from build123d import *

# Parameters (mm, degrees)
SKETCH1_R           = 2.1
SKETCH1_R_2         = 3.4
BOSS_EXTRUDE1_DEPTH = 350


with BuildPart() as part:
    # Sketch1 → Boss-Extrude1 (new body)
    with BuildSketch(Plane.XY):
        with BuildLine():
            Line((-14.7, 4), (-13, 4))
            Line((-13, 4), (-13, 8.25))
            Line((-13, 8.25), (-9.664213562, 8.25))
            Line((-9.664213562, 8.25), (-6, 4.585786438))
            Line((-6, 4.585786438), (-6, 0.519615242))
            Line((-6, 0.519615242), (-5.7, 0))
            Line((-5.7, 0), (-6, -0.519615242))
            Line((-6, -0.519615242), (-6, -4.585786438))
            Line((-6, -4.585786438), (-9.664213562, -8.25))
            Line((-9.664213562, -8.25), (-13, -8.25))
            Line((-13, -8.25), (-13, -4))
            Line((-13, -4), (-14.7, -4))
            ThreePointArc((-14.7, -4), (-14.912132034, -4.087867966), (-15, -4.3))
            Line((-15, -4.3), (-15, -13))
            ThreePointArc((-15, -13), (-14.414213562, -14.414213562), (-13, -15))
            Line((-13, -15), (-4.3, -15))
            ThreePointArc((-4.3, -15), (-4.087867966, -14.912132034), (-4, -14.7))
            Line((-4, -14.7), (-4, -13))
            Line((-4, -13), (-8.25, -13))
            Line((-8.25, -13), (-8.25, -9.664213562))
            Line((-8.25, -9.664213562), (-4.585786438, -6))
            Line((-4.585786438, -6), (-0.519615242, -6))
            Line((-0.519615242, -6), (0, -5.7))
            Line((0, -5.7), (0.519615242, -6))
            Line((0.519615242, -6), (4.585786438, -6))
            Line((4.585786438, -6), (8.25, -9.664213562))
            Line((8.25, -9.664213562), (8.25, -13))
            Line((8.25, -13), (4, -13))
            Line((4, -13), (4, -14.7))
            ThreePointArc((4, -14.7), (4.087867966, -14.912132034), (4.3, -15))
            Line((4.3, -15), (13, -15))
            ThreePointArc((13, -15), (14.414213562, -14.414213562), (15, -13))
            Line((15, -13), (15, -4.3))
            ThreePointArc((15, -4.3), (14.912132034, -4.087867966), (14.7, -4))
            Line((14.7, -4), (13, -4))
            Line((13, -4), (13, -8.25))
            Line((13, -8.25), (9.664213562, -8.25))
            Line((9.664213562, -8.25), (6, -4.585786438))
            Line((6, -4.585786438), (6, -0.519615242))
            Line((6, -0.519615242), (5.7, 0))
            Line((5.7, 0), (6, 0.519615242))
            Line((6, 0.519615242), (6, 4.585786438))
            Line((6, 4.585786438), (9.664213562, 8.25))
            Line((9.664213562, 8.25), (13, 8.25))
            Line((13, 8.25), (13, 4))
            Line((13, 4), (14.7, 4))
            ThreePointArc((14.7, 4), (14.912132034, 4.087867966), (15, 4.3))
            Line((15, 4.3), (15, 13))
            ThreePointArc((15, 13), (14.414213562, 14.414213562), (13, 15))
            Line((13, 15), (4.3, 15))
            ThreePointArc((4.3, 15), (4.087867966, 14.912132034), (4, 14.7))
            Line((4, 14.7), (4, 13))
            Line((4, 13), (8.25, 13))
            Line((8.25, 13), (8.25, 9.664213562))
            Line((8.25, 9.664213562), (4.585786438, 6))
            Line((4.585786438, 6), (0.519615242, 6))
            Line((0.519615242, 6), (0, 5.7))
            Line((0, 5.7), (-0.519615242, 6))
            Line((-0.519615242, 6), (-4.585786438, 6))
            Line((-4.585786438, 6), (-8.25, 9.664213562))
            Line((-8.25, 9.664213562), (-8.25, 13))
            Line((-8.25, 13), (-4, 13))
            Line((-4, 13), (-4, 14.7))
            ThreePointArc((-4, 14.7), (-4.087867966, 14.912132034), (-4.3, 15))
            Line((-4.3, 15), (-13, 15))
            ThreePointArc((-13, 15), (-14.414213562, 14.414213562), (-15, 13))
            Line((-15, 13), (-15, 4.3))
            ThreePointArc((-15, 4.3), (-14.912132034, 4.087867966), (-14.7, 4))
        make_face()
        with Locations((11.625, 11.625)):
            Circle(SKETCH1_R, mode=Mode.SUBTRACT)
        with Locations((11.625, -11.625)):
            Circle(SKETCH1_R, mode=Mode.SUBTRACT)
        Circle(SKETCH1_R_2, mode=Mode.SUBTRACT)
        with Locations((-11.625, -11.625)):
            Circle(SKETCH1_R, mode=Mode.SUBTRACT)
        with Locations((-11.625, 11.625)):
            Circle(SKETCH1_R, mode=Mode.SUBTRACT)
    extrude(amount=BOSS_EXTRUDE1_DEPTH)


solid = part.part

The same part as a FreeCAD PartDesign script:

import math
import FreeCAD as App
import Part
import Sketcher
Q = App.Units.Quantity

doc = App.newDocument("Part")
params = doc.addObject("Spreadsheet::Sheet", "Params")
for row, (alias, value) in enumerate([
    ("sketch1_radius", "2 mm"),
    ("sketch1_diameter", "4.2 mm"),
    ("sketch1_diameter2", "6.8 mm"),
    ("sketch1_radius2", "0.3 mm"),
    ("sketch1_width", "8.7 mm"),
    ("pad1_length", "350 mm"),
], start=1):
    params.set(f"A{row}", alias)
    params.set(f"B{row}", "=" + value)
    params.setAlias(f"B{row}", alias)

body = doc.addObject("PartDesign::Body", "Body")

# Sketch on XY plane
sketch1 = body.newObject("Sketcher::SketchObject", "Sketch")
sketch1.AttachmentSupport = (doc.getObject("XY_Plane"), [""])
sketch1.MapMode = "FlatFace"
sketch1.addGeometry(Part.LineSegment(App.Vector(-14.7, 4, 0), App.Vector(-13, 4, 0)), False)
sketch1.addGeometry(Part.LineSegment(App.Vector(-13, 4, 0), App.Vector(-13, 8.25, 0)), False)
sketch1.addGeometry(Part.LineSegment(App.Vector(-13, 8.25, 0), App.Vector(-9.664214, 8.25, 0)), False)
sketch1.addGeometry(Part.LineSegment(App.Vector(-9.664214, 8.25, 0), App.Vector(-6, 4.585786, 0)), False)
sketch1.addGeometry(Part.LineSegment(App.Vector(-6, 4.585786, 0), App.Vector(-6, 0.519615, 0)), False)
sketch1.addGeometry(Part.LineSegment(App.Vector(-6, 0.519615, 0), App.Vector(-5.7, 0, 0)), False)
sketch1.addGeometry(Part.LineSegment(App.Vector(-5.7, 0, 0), App.Vector(-6, -0.519615, 0)), False)
sketch1.addGeometry(Part.LineSegment(App.Vector(-6, -0.519615, 0), App.Vector(-6, -4.585786, 0)), False)
sketch1.addGeometry(Part.LineSegment(App.Vector(-6, -4.585786, 0), App.Vector(-9.664214, -8.25, 0)), False)
sketch1.addGeometry(Part.LineSegment(App.Vector(-9.664214, -8.25, 0), App.Vector(-13, -8.25, 0)), False)
sketch1.addGeometry(Part.LineSegment(App.Vector(-13, -8.25, 0), App.Vector(-13, -4, 0)), False)
sketch1.addGeometry(Part.LineSegment(App.Vector(-13, -4, 0), App.Vector(-14.7, -4, 0)), False)
sketch1.addGeometry(Part.ArcOfCircle(Part.Circle(App.Vector(-14.7, -4.3, 0), App.Vector(0, 0, 1), 0.3), math.radians(90), math.radians(180)), False)
sketch1.addGeometry(Part.LineSegment(App.Vector(-15, -4.3, 0), App.Vector(-15, -13, 0)), False)
sketch1.addGeometry(Part.ArcOfCircle(Part.Circle(App.Vector(-13, -13, 0), App.Vector(0, 0, 1), 2), math.radians(-180), math.radians(-90)), False)
sketch1.addGeometry(Part.LineSegment(App.Vector(-13, -15, 0), App.Vector(-4.3, -15, 0)), False)
sketch1.addGeometry(Part.ArcOfCircle(Part.Circle(App.Vector(-4.3, -14.7, 0), App.Vector(0, 0, 1), 0.3), math.radians(-90), math.radians(0)), False)
sketch1.addGeometry(Part.LineSegment(App.Vector(-4, -14.7, 0), App.Vector(-4, -13, 0)), False)
sketch1.addGeometry(Part.LineSegment(App.Vector(-4, -13, 0), App.Vector(-8.25, -13, 0)), False)
sketch1.addGeometry(Part.LineSegment(App.Vector(-8.25, -13, 0), App.Vector(-8.25, -9.664214, 0)), False)
sketch1.addGeometry(Part.LineSegment(App.Vector(-8.25, -9.664214, 0), App.Vector(-4.585786, -6, 0)), False)
sketch1.addGeometry(Part.LineSegment(App.Vector(-4.585786, -6, 0), App.Vector(-0.519615, -6, 0)), False)
sketch1.addGeometry(Part.LineSegment(App.Vector(-0.519615, -6, 0), App.Vector(0, -5.7, 0)), False)
sketch1.addGeometry(Part.LineSegment(App.Vector(0, -5.7, 0), App.Vector(0.519615, -6, 0)), False)
sketch1.addGeometry(Part.LineSegment(App.Vector(0.519615, -6, 0), App.Vector(4.585786, -6, 0)), False)
sketch1.addGeometry(Part.LineSegment(App.Vector(4.585786, -6, 0), App.Vector(8.25, -9.664214, 0)), False)
sketch1.addGeometry(Part.LineSegment(App.Vector(8.25, -9.664214, 0), App.Vector(8.25, -13, 0)), False)
sketch1.addGeometry(Part.LineSegment(App.Vector(8.25, -13, 0), App.Vector(4, -13, 0)), False)
sketch1.addGeometry(Part.LineSegment(App.Vector(4, -13, 0), App.Vector(4, -14.7, 0)), False)
sketch1.addGeometry(Part.ArcOfCircle(Part.Circle(App.Vector(4.3, -14.7, 0), App.Vector(0, 0, 1), 0.3), math.radians(-180), math.radians(-90)), False)
sketch1.addGeometry(Part.LineSegment(App.Vector(4.3, -15, 0), App.Vector(13, -15, 0)), False)
sketch1.addGeometry(Part.ArcOfCircle(Part.Circle(App.Vector(13, -13, 0), App.Vector(0, 0, 1), 2), math.radians(-90), math.radians(0)), False)
sketch1.addGeometry(Part.LineSegment(App.Vector(15, -13, 0), App.Vector(15, -4.3, 0)), False)
sketch1.addGeometry(Part.ArcOfCircle(Part.Circle(App.Vector(14.7, -4.3, 0), App.Vector(0, 0, 1), 0.3), math.radians(0), math.radians(90)), False)
sketch1.addGeometry(Part.LineSegment(App.Vector(14.7, -4, 0), App.Vector(13, -4, 0)), False)
sketch1.addGeometry(Part.LineSegment(App.Vector(13, -4, 0), App.Vector(13, -8.25, 0)), False)
sketch1.addGeometry(Part.LineSegment(App.Vector(13, -8.25, 0), App.Vector(9.664214, -8.25, 0)), False)
sketch1.addGeometry(Part.LineSegment(App.Vector(9.664214, -8.25, 0), App.Vector(6, -4.585786, 0)), False)
sketch1.addGeometry(Part.LineSegment(App.Vector(6, -4.585786, 0), App.Vector(6, -0.519615, 0)), False)
sketch1.addGeometry(Part.LineSegment(App.Vector(6, -0.519615, 0), App.Vector(5.7, 0, 0)), False)
sketch1.addGeometry(Part.LineSegment(App.Vector(5.7, 0, 0), App.Vector(6, 0.519615, 0)), False)
sketch1.addGeometry(Part.LineSegment(App.Vector(6, 0.519615, 0), App.Vector(6, 4.585786, 0)), False)
sketch1.addGeometry(Part.LineSegment(App.Vector(6, 4.585786, 0), App.Vector(9.664214, 8.25, 0)), False)
sketch1.addGeometry(Part.LineSegment(App.Vector(9.664214, 8.25, 0), App.Vector(13, 8.25, 0)), False)
sketch1.addGeometry(Part.LineSegment(App.Vector(13, 8.25, 0), App.Vector(13, 4, 0)), False)
sketch1.addGeometry(Part.LineSegment(App.Vector(13, 4, 0), App.Vector(14.7, 4, 0)), False)
sketch1.addGeometry(Part.ArcOfCircle(Part.Circle(App.Vector(14.7, 4.3, 0), App.Vector(0, 0, 1), 0.3), math.radians(-90), math.radians(0)), False)
sketch1.addGeometry(Part.LineSegment(App.Vector(15, 4.3, 0), App.Vector(15, 13, 0)), False)
sketch1.addGeometry(Part.ArcOfCircle(Part.Circle(App.Vector(13, 13, 0), App.Vector(0, 0, 1), 2), math.radians(0), math.radians(90)), False)
sketch1.addGeometry(Part.LineSegment(App.Vector(13, 15, 0), App.Vector(4.3, 15, 0)), False)
sketch1.addGeometry(Part.ArcOfCircle(Part.Circle(App.Vector(4.3, 14.7, 0), App.Vector(0, 0, 1), 0.3), math.radians(90), math.radians(180)), False)
sketch1.addGeometry(Part.LineSegment(App.Vector(4, 14.7, 0), App.Vector(4, 13, 0)), False)
sketch1.addGeometry(Part.LineSegment(App.Vector(4, 13, 0), App.Vector(8.25, 13, 0)), False)
sketch1.addGeometry(Part.LineSegment(App.Vector(8.25, 13, 0), App.Vector(8.25, 9.664214, 0)), False)
sketch1.addGeometry(Part.LineSegment(App.Vector(8.25, 9.664214, 0), App.Vector(4.585786, 6, 0)), False)
sketch1.addGeometry(Part.LineSegment(App.Vector(4.585786, 6, 0), App.Vector(0.519615, 6, 0)), False)
sketch1.addGeometry(Part.LineSegment(App.Vector(0.519615, 6, 0), App.Vector(0, 5.7, 0)), False)
sketch1.addGeometry(Part.LineSegment(App.Vector(0, 5.7, 0), App.Vector(-0.519615, 6, 0)), False)
sketch1.addGeometry(Part.LineSegment(App.Vector(-0.519615, 6, 0), App.Vector(-4.585786, 6, 0)), False)
sketch1.addGeometry(Part.LineSegment(App.Vector(-4.585786, 6, 0), App.Vector(-8.25, 9.664214, 0)), False)
sketch1.addGeometry(Part.LineSegment(App.Vector(-8.25, 9.664214, 0), App.Vector(-8.25, 13, 0)), False)
sketch1.addGeometry(Part.LineSegment(App.Vector(-8.25, 13, 0), App.Vector(-4, 13, 0)), False)
sketch1.addGeometry(Part.LineSegment(App.Vector(-4, 13, 0), App.Vector(-4, 14.7, 0)), False)
sketch1.addGeometry(Part.ArcOfCircle(Part.Circle(App.Vector(-4.3, 14.7, 0), App.Vector(0, 0, 1), 0.3), math.radians(0), math.radians(90)), False)
sketch1.addGeometry(Part.LineSegment(App.Vector(-4.3, 15, 0), App.Vector(-13, 15, 0)), False)
sketch1.addGeometry(Part.ArcOfCircle(Part.Circle(App.Vector(-13, 13, 0), App.Vector(0, 0, 1), 2), math.radians(90), math.radians(180)), False)
sketch1.addGeometry(Part.LineSegment(App.Vector(-15, 13, 0), App.Vector(-15, 4.3, 0)), False)
sketch1.addGeometry(Part.ArcOfCircle(Part.Circle(App.Vector(-14.7, 4.3, 0), App.Vector(0, 0, 1), 0.3), math.radians(-180), math.radians(-90)), False)
sketch1.addGeometry(Part.Circle(App.Vector(-11.625, -11.625, 0), App.Vector(0, 0, 1), 2.1), False)
sketch1.addGeometry(Part.Circle(App.Vector(11.625, -11.625, 0), App.Vector(0, 0, 1), 2.1), False)
sketch1.addGeometry(Part.Circle(App.Vector(-11.625, 11.625, 0), App.Vector(0, 0, 1), 2.1), False)
sketch1.addGeometry(Part.Circle(App.Vector(0, 0, 0), App.Vector(0, 0, 1), 3.4), False)
sketch1.addGeometry(Part.Circle(App.Vector(11.625, 11.625, 0), App.Vector(0, 0, 1), 2.1), False)
sketch1.addConstraint(Sketcher.Constraint("Coincident", 0, 2, 1, 1))
sketch1.addConstraint(Sketcher.Constraint("Coincident", 1, 2, 2, 1))
sketch1.addConstraint(Sketcher.Constraint("Coincident", 2, 2, 3, 1))
sketch1.addConstraint(Sketcher.Constraint("Coincident", 3, 2, 4, 1))
sketch1.addConstraint(Sketcher.Constraint("Coincident", 4, 2, 5, 1))
sketch1.addConstraint(Sketcher.Constraint("Coincident", 5, 2, 6, 1))
sketch1.addConstraint(Sketcher.Constraint("Coincident", 6, 2, 7, 1))
sketch1.addConstraint(Sketcher.Constraint("Coincident", 7, 2, 8, 1))
sketch1.addConstraint(Sketcher.Constraint("Coincident", 8, 2, 9, 1))
sketch1.addConstraint(Sketcher.Constraint("Coincident", 9, 2, 10, 1))
sketch1.addConstraint(Sketcher.Constraint("Coincident", 10, 2, 11, 1))
sketch1.addConstraint(Sketcher.Constraint("Tangent", 11, 2, 12, 1))
sketch1.addConstraint(Sketcher.Constraint("Tangent", 12, 2, 13, 1))
sketch1.addConstraint(Sketcher.Constraint("Tangent", 13, 2, 14, 1))
sketch1.addConstraint(Sketcher.Constraint("Tangent", 14, 2, 15, 1))
sketch1.addConstraint(Sketcher.Constraint("Tangent", 15, 2, 16, 1))
sketch1.addConstraint(Sketcher.Constraint("Tangent", 16, 2, 17, 1))
sketch1.addConstraint(Sketcher.Constraint("Coincident", 17, 2, 18, 1))
sketch1.addConstraint(Sketcher.Constraint("Coincident", 18, 2, 19, 1))
sketch1.addConstraint(Sketcher.Constraint("Coincident", 19, 2, 20, 1))
sketch1.addConstraint(Sketcher.Constraint("Coincident", 20, 2, 21, 1))
sketch1.addConstraint(Sketcher.Constraint("Coincident", 21, 2, 22, 1))
sketch1.addConstraint(Sketcher.Constraint("Coincident", 22, 2, 23, 1))
sketch1.addConstraint(Sketcher.Constraint("Coincident", 23, 2, 24, 1))
sketch1.addConstraint(Sketcher.Constraint("Coincident", 24, 2, 25, 1))
sketch1.addConstraint(Sketcher.Constraint("Coincident", 25, 2, 26, 1))
sketch1.addConstraint(Sketcher.Constraint("Coincident", 26, 2, 27, 1))
sketch1.addConstraint(Sketcher.Constraint("Coincident", 27, 2, 28, 1))
sketch1.addConstraint(Sketcher.Constraint("Tangent", 28, 2, 29, 1))
sketch1.addConstraint(Sketcher.Constraint("Tangent", 29, 2, 30, 1))
sketch1.addConstraint(Sketcher.Constraint("Tangent", 30, 2, 31, 1))
sketch1.addConstraint(Sketcher.Constraint("Tangent", 31, 2, 32, 1))
sketch1.addConstraint(Sketcher.Constraint("Tangent", 32, 2, 33, 1))
sketch1.addConstraint(Sketcher.Constraint("Tangent", 33, 2, 34, 1))
sketch1.addConstraint(Sketcher.Constraint("Coincident", 34, 2, 35, 1))
sketch1.addConstraint(Sketcher.Constraint("Coincident", 35, 2, 36, 1))
sketch1.addConstraint(Sketcher.Constraint("Coincident", 36, 2, 37, 1))
sketch1.addConstraint(Sketcher.Constraint("Coincident", 37, 2, 38, 1))
sketch1.addConstraint(Sketcher.Constraint("Coincident", 38, 2, 39, 1))
sketch1.addConstraint(Sketcher.Constraint("Coincident", 39, 2, 40, 1))
sketch1.addConstraint(Sketcher.Constraint("Coincident", 40, 2, 41, 1))
sketch1.addConstraint(Sketcher.Constraint("Coincident", 41, 2, 42, 1))
sketch1.addConstraint(Sketcher.Constraint("Coincident", 42, 2, 43, 1))
sketch1.addConstraint(Sketcher.Constraint("Coincident", 43, 2, 44, 1))
sketch1.addConstraint(Sketcher.Constraint("Coincident", 44, 2, 45, 1))
sketch1.addConstraint(Sketcher.Constraint("Tangent", 45, 2, 46, 1))
sketch1.addConstraint(Sketcher.Constraint("Tangent", 46, 2, 47, 1))
sketch1.addConstraint(Sketcher.Constraint("Tangent", 47, 2, 48, 1))
sketch1.addConstraint(Sketcher.Constraint("Tangent", 48, 2, 49, 1))
sketch1.addConstraint(Sketcher.Constraint("Tangent", 49, 2, 50, 1))
sketch1.addConstraint(Sketcher.Constraint("Tangent", 50, 2, 51, 1))
sketch1.addConstraint(Sketcher.Constraint("Coincident", 51, 2, 52, 1))
sketch1.addConstraint(Sketcher.Constraint("Coincident", 52, 2, 53, 1))
sketch1.addConstraint(Sketcher.Constraint("Coincident", 53, 2, 54, 1))
sketch1.addConstraint(Sketcher.Constraint("Coincident", 54, 2, 55, 1))
sketch1.addConstraint(Sketcher.Constraint("Coincident", 55, 2, 56, 1))
sketch1.addConstraint(Sketcher.Constraint("Coincident", 56, 2, 57, 1))
sketch1.addConstraint(Sketcher.Constraint("Coincident", 57, 2, 58, 1))
sketch1.addConstraint(Sketcher.Constraint("Coincident", 58, 2, 59, 1))
sketch1.addConstraint(Sketcher.Constraint("Coincident", 59, 2, 60, 1))
sketch1.addConstraint(Sketcher.Constraint("Coincident", 60, 2, 61, 1))
sketch1.addConstraint(Sketcher.Constraint("Coincident", 61, 2, 62, 1))
sketch1.addConstraint(Sketcher.Constraint("Tangent", 62, 2, 63, 1))
sketch1.addConstraint(Sketcher.Constraint("Tangent", 63, 2, 64, 1))
sketch1.addConstraint(Sketcher.Constraint("Tangent", 64, 2, 65, 1))
sketch1.addConstraint(Sketcher.Constraint("Tangent", 65, 2, 66, 1))
sketch1.addConstraint(Sketcher.Constraint("Tangent", 66, 2, 67, 1))
sketch1.addConstraint(Sketcher.Constraint("Tangent", 67, 2, 0, 1))
sketch1.addConstraint(Sketcher.Constraint("Horizontal", 0))
sketch1.addConstraint(Sketcher.Constraint("Vertical", 1))
sketch1.addConstraint(Sketcher.Constraint("Horizontal", 2))
sketch1.addConstraint(Sketcher.Constraint("Vertical", 4))
sketch1.addConstraint(Sketcher.Constraint("Vertical", 7))
sketch1.addConstraint(Sketcher.Constraint("Horizontal", 9))
sketch1.addConstraint(Sketcher.Constraint("Vertical", 10))
sketch1.addConstraint(Sketcher.Constraint("Horizontal", 11))
sketch1.addConstraint(Sketcher.Constraint("Vertical", 13))
sketch1.addConstraint(Sketcher.Constraint("Horizontal", 15))
sketch1.addConstraint(Sketcher.Constraint("Vertical", 17))
sketch1.addConstraint(Sketcher.Constraint("Horizontal", 18))
sketch1.addConstraint(Sketcher.Constraint("Vertical", 19))
sketch1.addConstraint(Sketcher.Constraint("Horizontal", 21))
sketch1.addConstraint(Sketcher.Constraint("Horizontal", 24))
sketch1.addConstraint(Sketcher.Constraint("Vertical", 26))
sketch1.addConstraint(Sketcher.Constraint("Horizontal", 27))
sketch1.addConstraint(Sketcher.Constraint("Vertical", 28))
sketch1.addConstraint(Sketcher.Constraint("Horizontal", 30))
sketch1.addConstraint(Sketcher.Constraint("Vertical", 32))
sketch1.addConstraint(Sketcher.Constraint("Horizontal", 34))
sketch1.addConstraint(Sketcher.Constraint("Vertical", 35))
sketch1.addConstraint(Sketcher.Constraint("Horizontal", 36))
sketch1.addConstraint(Sketcher.Constraint("Vertical", 38))
sketch1.addConstraint(Sketcher.Constraint("Vertical", 41))
sketch1.addConstraint(Sketcher.Constraint("Horizontal", 43))
sketch1.addConstraint(Sketcher.Constraint("Vertical", 44))
sketch1.addConstraint(Sketcher.Constraint("Horizontal", 45))
sketch1.addConstraint(Sketcher.Constraint("Vertical", 47))
sketch1.addConstraint(Sketcher.Constraint("Horizontal", 49))
sketch1.addConstraint(Sketcher.Constraint("Vertical", 51))
sketch1.addConstraint(Sketcher.Constraint("Horizontal", 52))
sketch1.addConstraint(Sketcher.Constraint("Vertical", 53))
sketch1.addConstraint(Sketcher.Constraint("Horizontal", 55))
sketch1.addConstraint(Sketcher.Constraint("Horizontal", 58))
sketch1.addConstraint(Sketcher.Constraint("Vertical", 60))
sketch1.addConstraint(Sketcher.Constraint("Horizontal", 61))
sketch1.addConstraint(Sketcher.Constraint("Vertical", 62))
sketch1.addConstraint(Sketcher.Constraint("Horizontal", 64))
sketch1.addConstraint(Sketcher.Constraint("Vertical", 66))
sketch1.addConstraint(Sketcher.Constraint("Coincident", 71, 3, -1, 1))
sketch1.addConstraint(Sketcher.Constraint("Equal", 12, 16))
sketch1.addConstraint(Sketcher.Constraint("Equal", 16, 29))
sketch1.addConstraint(Sketcher.Constraint("Equal", 14, 31))
sketch1.addConstraint(Sketcher.Constraint("Equal", 29, 33))
sketch1.addConstraint(Sketcher.Constraint("Equal", 33, 46))
sketch1.addConstraint(Sketcher.Constraint("Equal", 31, 48))
sketch1.addConstraint(Sketcher.Constraint("Equal", 46, 50))
sketch1.addConstraint(Sketcher.Constraint("Equal", 50, 63))
sketch1.addConstraint(Sketcher.Constraint("Equal", 48, 65))
sketch1.addConstraint(Sketcher.Constraint("Equal", 63, 67))
sketch1.addConstraint(Sketcher.Constraint("Equal", 68, 69))
sketch1.addConstraint(Sketcher.Constraint("Equal", 69, 70))
sketch1.addConstraint(Sketcher.Constraint("Equal", 70, 72))
sketch1.addConstraint(Sketcher.Constraint("Symmetric", 12, 3, 46, 3, -1, 1))
sketch1.addConstraint(Sketcher.Constraint("Symmetric", 16, 3, 50, 3, -1, 1))
sketch1.addConstraint(Sketcher.Constraint("Symmetric", 29, 3, 63, 3, -1, 1))
sketch1.addConstraint(Sketcher.Constraint("Symmetric", 33, 3, 67, 3, -1, 1))
sketch1.addConstraint(Sketcher.Constraint("Symmetric", 69, 3, 70, 3, -1, 1))
sketch1.addConstraint(Sketcher.Constraint("Symmetric", 68, 3, 72, 3, -1, 1))
sketch1.addConstraint(Sketcher.Constraint("Symmetric", 1, 2, 35, 2, -1, 1))
sketch1.addConstraint(Sketcher.Constraint("Symmetric", 3, 2, 37, 2, -1, 1))
sketch1.addConstraint(Sketcher.Constraint("Symmetric", 5, 2, 39, 2, -1, 1))
sketch1.addConstraint(Sketcher.Constraint("Symmetric", 6, 2, 40, 2, -1, 1))
sketch1.addConstraint(Sketcher.Constraint("Symmetric", 8, 2, 42, 2, -1, 1))
sketch1.addConstraint(Sketcher.Constraint("Symmetric", 18, 2, 52, 2, -1, 1))
sketch1.addConstraint(Sketcher.Constraint("Symmetric", 20, 2, 54, 2, -1, 1))
sketch1.addConstraint(Sketcher.Constraint("Symmetric", 22, 2, 56, 2, -1, 1))
sketch1.addConstraint(Sketcher.Constraint("Symmetric", 23, 2, 57, 2, -1, 1))
sketch1.addConstraint(Sketcher.Constraint("Symmetric", 25, 2, 59, 2, -1, 1))
sketch1.addConstraint(Sketcher.Constraint("Symmetric", 16, 3, 29, 3, -2))
sketch1.addConstraint(Sketcher.Constraint("Symmetric", 12, 3, 33, 3, -2))
sketch1.addConstraint(Sketcher.Constraint("Symmetric", 68, 3, 69, 3, -2))
sketch1.addConstraint(Sketcher.Constraint("Symmetric", 21, 2, 23, 2, -2))
sketch1.addConstraint(Sketcher.Constraint("Symmetric", 19, 2, 25, 2, -2))
sketch1.addConstraint(Sketcher.Constraint("Symmetric", 9, 2, 35, 2, -2))
sketch1.addConstraint(Sketcher.Constraint("Symmetric", 7, 2, 37, 2, -2))
sketch1.addConstraint(Sketcher.Constraint("PointOnObject", 5, 2, -1))
sketch1.addConstraint(Sketcher.Constraint("PointOnObject", 22, 2, -2))
sketch1.addConstraint(Sketcher.Constraint("Perpendicular", 3, 8))
sketch1.addConstraint(Sketcher.Constraint("Parallel", 8, 20))
sketch1.addConstraint(Sketcher.Constraint("Perpendicular", 5, 22))
sketch1.addConstraint(Sketcher.Constraint("Perpendicular", 6, 23))
sketch1.addConstraint(Sketcher.Constraint("Perpendicular", 20, 25))
sketch1.addConstraint(Sketcher.Constraint("Parallel", 25, 37))
sketch1.addConstraint(Sketcher.Constraint("Perpendicular", 22, 39))
sketch1.addConstraint(Sketcher.Constraint("Perpendicular", 37, 42))
sketch1.addConstraint(Sketcher.Constraint("Parallel", 42, 54))
sketch1.addConstraint(Sketcher.Constraint("Perpendicular", 39, 56))
sketch1.addConstraint(Sketcher.Constraint("Perpendicular", 54, 59))
sketch1.addConstraint(Sketcher.Constraint("Horizontal", 13, 2, 17, 2))
sketch1.addConstraint(Sketcher.Constraint("Horizontal", 18, 2, 26, 2))
sketch1.addConstraint(Sketcher.Constraint("Horizontal", 52, 2, 60, 2))
sketch1.addConstraint(Sketcher.Constraint("Vertical", 65, 3, 0, 2))
sketch1.addConstraint(Sketcher.Constraint("Vertical", 2, 2, 8, 2))
sketch1.addConstraint(Sketcher.Constraint("Vertical", 35, 2, 43, 2))
sketch1.addConstraint(Sketcher.Constraint("Equal", 61, 1))
sketch1.addConstraint(Sketcher.Constraint("Equal", 58, 4))
sketch1.addConstraint(Sketcher.Constraint("Equal", 64, 13))
sketch1.addConstraint(Sketcher.Constraint("Equal", 43, 19))
sketch1.addConstraint(Sketcher.Constraint("Equal", 8, 20))
sketch1.addConstraint(Sketcher.Constraint("Equal", 6, 22))
sketch1.addConstraint(Sketcher.Constraint("Radius", 14, Q("2 mm")))
sketch1.addConstraint(Sketcher.Constraint("Diameter", 68, Q("4.2 mm")))
sketch1.addConstraint(Sketcher.Constraint("Diameter", 71, Q("6.8 mm")))
sketch1.addConstraint(Sketcher.Constraint("Radius", 12, Q("0.3 mm")))
sketch1.addConstraint(Sketcher.Constraint("Angle", 5, Q("-60 deg")))
sketch1.addConstraint(Sketcher.Constraint("DistanceX", 15, 1, 15, 2, Q("8.7 mm")))
sketch1.addConstraint(Sketcher.Constraint("DistanceX", 14, 3, -1, 1, Q("13 mm")))
sketch1.addConstraint(Sketcher.Constraint("DistanceX", 3, 2, -1, 1, Q("6 mm")))
sketch1.addConstraint(Sketcher.Constraint("Distance", 5, Q("0.6 mm")))
sketch1.addConstraint(Sketcher.Constraint("DistanceX", 18, 2, 18, 1, Q("4.25 mm")))
sketch1.addConstraint(Sketcher.Constraint("DistanceX", 68, 3, -1, 1, Q("11.625 mm")))
sketch1.addConstraint(Sketcher.Constraint("DistanceY", 68, 3, -1, 1, Q("11.625 mm")))
sketch1.addConstraint(Sketcher.Constraint("DistanceX", 21, 1, 21, 2, Q("4.066171 mm")))
sketch1.setExpression("Constraints[170]", "Params.sketch1_radius")
sketch1.setExpression("Constraints[171]", "Params.sketch1_diameter")
sketch1.setExpression("Constraints[172]", "Params.sketch1_diameter2")
sketch1.setExpression("Constraints[173]", "Params.sketch1_radius2")
sketch1.setExpression("Constraints[175]", "Params.sketch1_width")
pad1 = body.newObject("PartDesign::Pad", "Pad")
pad1.Profile = sketch1
pad1.setExpression("Length", "Params.pad1_length")

doc.recompute()
